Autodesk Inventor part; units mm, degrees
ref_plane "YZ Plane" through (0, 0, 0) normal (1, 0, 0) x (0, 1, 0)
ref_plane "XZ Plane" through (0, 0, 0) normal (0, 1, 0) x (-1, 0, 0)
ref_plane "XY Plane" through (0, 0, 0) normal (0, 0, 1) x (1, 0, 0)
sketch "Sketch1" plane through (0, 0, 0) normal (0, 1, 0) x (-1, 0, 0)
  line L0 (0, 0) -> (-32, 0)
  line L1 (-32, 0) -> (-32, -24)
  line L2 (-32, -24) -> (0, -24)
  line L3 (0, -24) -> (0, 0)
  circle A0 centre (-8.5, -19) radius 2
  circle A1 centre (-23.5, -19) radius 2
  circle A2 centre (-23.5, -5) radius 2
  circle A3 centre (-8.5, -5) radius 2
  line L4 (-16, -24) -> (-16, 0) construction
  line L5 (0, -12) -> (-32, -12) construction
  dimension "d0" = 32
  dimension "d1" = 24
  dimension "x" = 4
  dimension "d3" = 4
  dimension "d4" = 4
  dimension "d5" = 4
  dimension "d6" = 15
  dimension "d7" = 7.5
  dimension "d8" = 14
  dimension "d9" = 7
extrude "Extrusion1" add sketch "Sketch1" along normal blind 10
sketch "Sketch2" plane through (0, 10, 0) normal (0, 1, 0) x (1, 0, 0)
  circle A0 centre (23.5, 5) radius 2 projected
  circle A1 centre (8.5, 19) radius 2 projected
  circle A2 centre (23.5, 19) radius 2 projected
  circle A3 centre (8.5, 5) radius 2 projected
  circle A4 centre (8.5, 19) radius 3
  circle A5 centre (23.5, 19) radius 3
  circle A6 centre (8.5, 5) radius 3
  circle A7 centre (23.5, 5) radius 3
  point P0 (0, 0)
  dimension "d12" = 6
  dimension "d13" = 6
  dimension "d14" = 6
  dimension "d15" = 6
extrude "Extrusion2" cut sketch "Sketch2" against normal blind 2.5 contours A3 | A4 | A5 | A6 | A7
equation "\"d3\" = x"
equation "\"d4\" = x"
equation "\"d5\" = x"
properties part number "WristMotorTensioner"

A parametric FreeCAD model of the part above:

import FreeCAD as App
import Part
import Sketcher

V = App.Vector


def add_polygon(sketch, points):
    """Adds a closed chain of lines whose ends are joined by coincident constraints."""
    first, n = sketch.GeometryCount, len(points)
    for a, b in zip(points, points[1:] + points[:1]):
        sketch.addGeometry(Part.LineSegment(App.Vector(*a, 0), App.Vector(*b, 0)), False)
    for i in range(n):
        sketch.addConstraint(Sketcher.Constraint("Coincident", first + i, 2, first + (i + 1) % n, 1))

doc = App.newDocument("Part")
body = doc.addObject("PartDesign::Body", "Body")

sketch1 = body.newObject("Sketcher::SketchObject", "Sketch")
sketch1.AttachmentSupport = (doc.getObject("XZ_Plane"), [""])
sketch1.MapMode = "FlatFace"
add_polygon(sketch1, [(0, -24), (0, 0), (32, 0), (32, -24)])
sketch1.addGeometry(Part.Circle(V(23.5, -19, 0), V(0, 0, 1), 2), False)
sketch1.addGeometry(Part.Circle(V(8.5, -19, 0), V(0, 0, 1), 2), False)
sketch1.addGeometry(Part.Circle(V(23.5, -5, 0), V(0, 0, 1), 2), False)
sketch1.addGeometry(Part.Circle(V(8.5, -5, 0), V(0, 0, 1), 2), False)
sketch1.addConstraint([
    Sketcher.Constraint("Vertical", 0),
    Sketcher.Constraint("Horizontal", 1),
    Sketcher.Constraint("Vertical", 2),
    Sketcher.Constraint("Horizontal", 3),
    Sketcher.Constraint("Coincident", 0, 2, -1, 1),
    Sketcher.Constraint("Equal", 4, 5),
    Sketcher.Constraint("Equal", 5, 6),
    Sketcher.Constraint("Equal", 6, 7),
    Sketcher.Constraint("Horizontal", 4, 3, 5, 3),
    Sketcher.Constraint("Horizontal", 6, 3, 7, 3),
    Sketcher.Constraint("Vertical", 4, 3, 6, 3),
    Sketcher.Constraint("Vertical", 5, 3, 7, 3),
    Sketcher.Constraint("Diameter", 4, 4.0),
    Sketcher.Constraint("DistanceX", 1, 1, 1, 2, 32.0),
    Sketcher.Constraint("DistanceY", 0, 1, 0, 2, 24.0),
    Sketcher.Constraint("DistanceX", 5, 3, 4, 3, 15.0),
    Sketcher.Constraint("DistanceY", 4, 3, 6, 3, 14.0),
    Sketcher.Constraint("DistanceY", 4, 3, -1, 1, 19.0),
    Sketcher.Constraint("DistanceX", -1, 1, 4, 3, 23.5),
])
pad1 = body.newObject("PartDesign::Pad", "Pad")
pad1.Profile = sketch1
pad1.Length = 10
pad1.Reversed = True

sketch2 = body.newObject("Sketcher::SketchObject", "Sketch001")
sketch2.AttachmentSupport = (doc.getObject("XZ_Plane"), [""])
sketch2.MapMode = "FlatFace"
sketch2.AttachmentOffset = App.Placement(V(0, 0, -10), App.Rotation())
sketch2.addGeometry([
    Part.Circle(V(8.5, -5, 0), V(0, 0, 1), 3),
    Part.Circle(V(8.5, -19, 0), V(0, 0, 1), 3),
    Part.Circle(V(8.5, -19, 0), V(0, 0, 1), 2),
    Part.Circle(V(23.5, -19, 0), V(0, 0, 1), 3),
    Part.Circle(V(23.5, -19, 0), V(0, 0, 1), 2),
    Part.Circle(V(23.5, -5, 0), V(0, 0, 1), 3),
    Part.Circle(V(23.5, -5, 0), V(0, 0, 1), 2),
], False)
sketch2.addConstraint([
    Sketcher.Constraint("Coincident", 2, 3, 1, 3),
    Sketcher.Constraint("Coincident", 4, 3, 3, 3),
    Sketcher.Constraint("Coincident", 6, 3, 5, 3),
    Sketcher.Constraint("Equal", 0, 1),
    Sketcher.Constraint("Equal", 1, 3),
    Sketcher.Constraint("Equal", 2, 4),
    Sketcher.Constraint("Equal", 3, 5),
    Sketcher.Constraint("Equal", 4, 6),
    Sketcher.Constraint("Horizontal", 2, 3, 3, 3),
    Sketcher.Constraint("Horizontal", 0, 3, 5, 3),
    Sketcher.Constraint("Vertical", 0, 3, 1, 3),
    Sketcher.Constraint("Vertical", 4, 3, 5, 3),
    Sketcher.Constraint("Diameter", 0, 6.0),
    Sketcher.Constraint("Diameter", 2, 4.0),
    Sketcher.Constraint("DistanceY", 0, 3, -1, 1, 5.0),
    Sketcher.Constraint("DistanceY", 1, 3, -1, 1, 19.0),
    Sketcher.Constraint("DistanceX", 1, 3, 3, 3, 15.0),
    Sketcher.Constraint("DistanceX", -1, 1, 0, 3, 8.5),
])
pocket1 = body.newObject("PartDesign::Pocket", "Pocket")
pocket1.Profile = sketch2
pocket1.Length = 2.5
pocket1.Reversed = True

doc.recompute()
